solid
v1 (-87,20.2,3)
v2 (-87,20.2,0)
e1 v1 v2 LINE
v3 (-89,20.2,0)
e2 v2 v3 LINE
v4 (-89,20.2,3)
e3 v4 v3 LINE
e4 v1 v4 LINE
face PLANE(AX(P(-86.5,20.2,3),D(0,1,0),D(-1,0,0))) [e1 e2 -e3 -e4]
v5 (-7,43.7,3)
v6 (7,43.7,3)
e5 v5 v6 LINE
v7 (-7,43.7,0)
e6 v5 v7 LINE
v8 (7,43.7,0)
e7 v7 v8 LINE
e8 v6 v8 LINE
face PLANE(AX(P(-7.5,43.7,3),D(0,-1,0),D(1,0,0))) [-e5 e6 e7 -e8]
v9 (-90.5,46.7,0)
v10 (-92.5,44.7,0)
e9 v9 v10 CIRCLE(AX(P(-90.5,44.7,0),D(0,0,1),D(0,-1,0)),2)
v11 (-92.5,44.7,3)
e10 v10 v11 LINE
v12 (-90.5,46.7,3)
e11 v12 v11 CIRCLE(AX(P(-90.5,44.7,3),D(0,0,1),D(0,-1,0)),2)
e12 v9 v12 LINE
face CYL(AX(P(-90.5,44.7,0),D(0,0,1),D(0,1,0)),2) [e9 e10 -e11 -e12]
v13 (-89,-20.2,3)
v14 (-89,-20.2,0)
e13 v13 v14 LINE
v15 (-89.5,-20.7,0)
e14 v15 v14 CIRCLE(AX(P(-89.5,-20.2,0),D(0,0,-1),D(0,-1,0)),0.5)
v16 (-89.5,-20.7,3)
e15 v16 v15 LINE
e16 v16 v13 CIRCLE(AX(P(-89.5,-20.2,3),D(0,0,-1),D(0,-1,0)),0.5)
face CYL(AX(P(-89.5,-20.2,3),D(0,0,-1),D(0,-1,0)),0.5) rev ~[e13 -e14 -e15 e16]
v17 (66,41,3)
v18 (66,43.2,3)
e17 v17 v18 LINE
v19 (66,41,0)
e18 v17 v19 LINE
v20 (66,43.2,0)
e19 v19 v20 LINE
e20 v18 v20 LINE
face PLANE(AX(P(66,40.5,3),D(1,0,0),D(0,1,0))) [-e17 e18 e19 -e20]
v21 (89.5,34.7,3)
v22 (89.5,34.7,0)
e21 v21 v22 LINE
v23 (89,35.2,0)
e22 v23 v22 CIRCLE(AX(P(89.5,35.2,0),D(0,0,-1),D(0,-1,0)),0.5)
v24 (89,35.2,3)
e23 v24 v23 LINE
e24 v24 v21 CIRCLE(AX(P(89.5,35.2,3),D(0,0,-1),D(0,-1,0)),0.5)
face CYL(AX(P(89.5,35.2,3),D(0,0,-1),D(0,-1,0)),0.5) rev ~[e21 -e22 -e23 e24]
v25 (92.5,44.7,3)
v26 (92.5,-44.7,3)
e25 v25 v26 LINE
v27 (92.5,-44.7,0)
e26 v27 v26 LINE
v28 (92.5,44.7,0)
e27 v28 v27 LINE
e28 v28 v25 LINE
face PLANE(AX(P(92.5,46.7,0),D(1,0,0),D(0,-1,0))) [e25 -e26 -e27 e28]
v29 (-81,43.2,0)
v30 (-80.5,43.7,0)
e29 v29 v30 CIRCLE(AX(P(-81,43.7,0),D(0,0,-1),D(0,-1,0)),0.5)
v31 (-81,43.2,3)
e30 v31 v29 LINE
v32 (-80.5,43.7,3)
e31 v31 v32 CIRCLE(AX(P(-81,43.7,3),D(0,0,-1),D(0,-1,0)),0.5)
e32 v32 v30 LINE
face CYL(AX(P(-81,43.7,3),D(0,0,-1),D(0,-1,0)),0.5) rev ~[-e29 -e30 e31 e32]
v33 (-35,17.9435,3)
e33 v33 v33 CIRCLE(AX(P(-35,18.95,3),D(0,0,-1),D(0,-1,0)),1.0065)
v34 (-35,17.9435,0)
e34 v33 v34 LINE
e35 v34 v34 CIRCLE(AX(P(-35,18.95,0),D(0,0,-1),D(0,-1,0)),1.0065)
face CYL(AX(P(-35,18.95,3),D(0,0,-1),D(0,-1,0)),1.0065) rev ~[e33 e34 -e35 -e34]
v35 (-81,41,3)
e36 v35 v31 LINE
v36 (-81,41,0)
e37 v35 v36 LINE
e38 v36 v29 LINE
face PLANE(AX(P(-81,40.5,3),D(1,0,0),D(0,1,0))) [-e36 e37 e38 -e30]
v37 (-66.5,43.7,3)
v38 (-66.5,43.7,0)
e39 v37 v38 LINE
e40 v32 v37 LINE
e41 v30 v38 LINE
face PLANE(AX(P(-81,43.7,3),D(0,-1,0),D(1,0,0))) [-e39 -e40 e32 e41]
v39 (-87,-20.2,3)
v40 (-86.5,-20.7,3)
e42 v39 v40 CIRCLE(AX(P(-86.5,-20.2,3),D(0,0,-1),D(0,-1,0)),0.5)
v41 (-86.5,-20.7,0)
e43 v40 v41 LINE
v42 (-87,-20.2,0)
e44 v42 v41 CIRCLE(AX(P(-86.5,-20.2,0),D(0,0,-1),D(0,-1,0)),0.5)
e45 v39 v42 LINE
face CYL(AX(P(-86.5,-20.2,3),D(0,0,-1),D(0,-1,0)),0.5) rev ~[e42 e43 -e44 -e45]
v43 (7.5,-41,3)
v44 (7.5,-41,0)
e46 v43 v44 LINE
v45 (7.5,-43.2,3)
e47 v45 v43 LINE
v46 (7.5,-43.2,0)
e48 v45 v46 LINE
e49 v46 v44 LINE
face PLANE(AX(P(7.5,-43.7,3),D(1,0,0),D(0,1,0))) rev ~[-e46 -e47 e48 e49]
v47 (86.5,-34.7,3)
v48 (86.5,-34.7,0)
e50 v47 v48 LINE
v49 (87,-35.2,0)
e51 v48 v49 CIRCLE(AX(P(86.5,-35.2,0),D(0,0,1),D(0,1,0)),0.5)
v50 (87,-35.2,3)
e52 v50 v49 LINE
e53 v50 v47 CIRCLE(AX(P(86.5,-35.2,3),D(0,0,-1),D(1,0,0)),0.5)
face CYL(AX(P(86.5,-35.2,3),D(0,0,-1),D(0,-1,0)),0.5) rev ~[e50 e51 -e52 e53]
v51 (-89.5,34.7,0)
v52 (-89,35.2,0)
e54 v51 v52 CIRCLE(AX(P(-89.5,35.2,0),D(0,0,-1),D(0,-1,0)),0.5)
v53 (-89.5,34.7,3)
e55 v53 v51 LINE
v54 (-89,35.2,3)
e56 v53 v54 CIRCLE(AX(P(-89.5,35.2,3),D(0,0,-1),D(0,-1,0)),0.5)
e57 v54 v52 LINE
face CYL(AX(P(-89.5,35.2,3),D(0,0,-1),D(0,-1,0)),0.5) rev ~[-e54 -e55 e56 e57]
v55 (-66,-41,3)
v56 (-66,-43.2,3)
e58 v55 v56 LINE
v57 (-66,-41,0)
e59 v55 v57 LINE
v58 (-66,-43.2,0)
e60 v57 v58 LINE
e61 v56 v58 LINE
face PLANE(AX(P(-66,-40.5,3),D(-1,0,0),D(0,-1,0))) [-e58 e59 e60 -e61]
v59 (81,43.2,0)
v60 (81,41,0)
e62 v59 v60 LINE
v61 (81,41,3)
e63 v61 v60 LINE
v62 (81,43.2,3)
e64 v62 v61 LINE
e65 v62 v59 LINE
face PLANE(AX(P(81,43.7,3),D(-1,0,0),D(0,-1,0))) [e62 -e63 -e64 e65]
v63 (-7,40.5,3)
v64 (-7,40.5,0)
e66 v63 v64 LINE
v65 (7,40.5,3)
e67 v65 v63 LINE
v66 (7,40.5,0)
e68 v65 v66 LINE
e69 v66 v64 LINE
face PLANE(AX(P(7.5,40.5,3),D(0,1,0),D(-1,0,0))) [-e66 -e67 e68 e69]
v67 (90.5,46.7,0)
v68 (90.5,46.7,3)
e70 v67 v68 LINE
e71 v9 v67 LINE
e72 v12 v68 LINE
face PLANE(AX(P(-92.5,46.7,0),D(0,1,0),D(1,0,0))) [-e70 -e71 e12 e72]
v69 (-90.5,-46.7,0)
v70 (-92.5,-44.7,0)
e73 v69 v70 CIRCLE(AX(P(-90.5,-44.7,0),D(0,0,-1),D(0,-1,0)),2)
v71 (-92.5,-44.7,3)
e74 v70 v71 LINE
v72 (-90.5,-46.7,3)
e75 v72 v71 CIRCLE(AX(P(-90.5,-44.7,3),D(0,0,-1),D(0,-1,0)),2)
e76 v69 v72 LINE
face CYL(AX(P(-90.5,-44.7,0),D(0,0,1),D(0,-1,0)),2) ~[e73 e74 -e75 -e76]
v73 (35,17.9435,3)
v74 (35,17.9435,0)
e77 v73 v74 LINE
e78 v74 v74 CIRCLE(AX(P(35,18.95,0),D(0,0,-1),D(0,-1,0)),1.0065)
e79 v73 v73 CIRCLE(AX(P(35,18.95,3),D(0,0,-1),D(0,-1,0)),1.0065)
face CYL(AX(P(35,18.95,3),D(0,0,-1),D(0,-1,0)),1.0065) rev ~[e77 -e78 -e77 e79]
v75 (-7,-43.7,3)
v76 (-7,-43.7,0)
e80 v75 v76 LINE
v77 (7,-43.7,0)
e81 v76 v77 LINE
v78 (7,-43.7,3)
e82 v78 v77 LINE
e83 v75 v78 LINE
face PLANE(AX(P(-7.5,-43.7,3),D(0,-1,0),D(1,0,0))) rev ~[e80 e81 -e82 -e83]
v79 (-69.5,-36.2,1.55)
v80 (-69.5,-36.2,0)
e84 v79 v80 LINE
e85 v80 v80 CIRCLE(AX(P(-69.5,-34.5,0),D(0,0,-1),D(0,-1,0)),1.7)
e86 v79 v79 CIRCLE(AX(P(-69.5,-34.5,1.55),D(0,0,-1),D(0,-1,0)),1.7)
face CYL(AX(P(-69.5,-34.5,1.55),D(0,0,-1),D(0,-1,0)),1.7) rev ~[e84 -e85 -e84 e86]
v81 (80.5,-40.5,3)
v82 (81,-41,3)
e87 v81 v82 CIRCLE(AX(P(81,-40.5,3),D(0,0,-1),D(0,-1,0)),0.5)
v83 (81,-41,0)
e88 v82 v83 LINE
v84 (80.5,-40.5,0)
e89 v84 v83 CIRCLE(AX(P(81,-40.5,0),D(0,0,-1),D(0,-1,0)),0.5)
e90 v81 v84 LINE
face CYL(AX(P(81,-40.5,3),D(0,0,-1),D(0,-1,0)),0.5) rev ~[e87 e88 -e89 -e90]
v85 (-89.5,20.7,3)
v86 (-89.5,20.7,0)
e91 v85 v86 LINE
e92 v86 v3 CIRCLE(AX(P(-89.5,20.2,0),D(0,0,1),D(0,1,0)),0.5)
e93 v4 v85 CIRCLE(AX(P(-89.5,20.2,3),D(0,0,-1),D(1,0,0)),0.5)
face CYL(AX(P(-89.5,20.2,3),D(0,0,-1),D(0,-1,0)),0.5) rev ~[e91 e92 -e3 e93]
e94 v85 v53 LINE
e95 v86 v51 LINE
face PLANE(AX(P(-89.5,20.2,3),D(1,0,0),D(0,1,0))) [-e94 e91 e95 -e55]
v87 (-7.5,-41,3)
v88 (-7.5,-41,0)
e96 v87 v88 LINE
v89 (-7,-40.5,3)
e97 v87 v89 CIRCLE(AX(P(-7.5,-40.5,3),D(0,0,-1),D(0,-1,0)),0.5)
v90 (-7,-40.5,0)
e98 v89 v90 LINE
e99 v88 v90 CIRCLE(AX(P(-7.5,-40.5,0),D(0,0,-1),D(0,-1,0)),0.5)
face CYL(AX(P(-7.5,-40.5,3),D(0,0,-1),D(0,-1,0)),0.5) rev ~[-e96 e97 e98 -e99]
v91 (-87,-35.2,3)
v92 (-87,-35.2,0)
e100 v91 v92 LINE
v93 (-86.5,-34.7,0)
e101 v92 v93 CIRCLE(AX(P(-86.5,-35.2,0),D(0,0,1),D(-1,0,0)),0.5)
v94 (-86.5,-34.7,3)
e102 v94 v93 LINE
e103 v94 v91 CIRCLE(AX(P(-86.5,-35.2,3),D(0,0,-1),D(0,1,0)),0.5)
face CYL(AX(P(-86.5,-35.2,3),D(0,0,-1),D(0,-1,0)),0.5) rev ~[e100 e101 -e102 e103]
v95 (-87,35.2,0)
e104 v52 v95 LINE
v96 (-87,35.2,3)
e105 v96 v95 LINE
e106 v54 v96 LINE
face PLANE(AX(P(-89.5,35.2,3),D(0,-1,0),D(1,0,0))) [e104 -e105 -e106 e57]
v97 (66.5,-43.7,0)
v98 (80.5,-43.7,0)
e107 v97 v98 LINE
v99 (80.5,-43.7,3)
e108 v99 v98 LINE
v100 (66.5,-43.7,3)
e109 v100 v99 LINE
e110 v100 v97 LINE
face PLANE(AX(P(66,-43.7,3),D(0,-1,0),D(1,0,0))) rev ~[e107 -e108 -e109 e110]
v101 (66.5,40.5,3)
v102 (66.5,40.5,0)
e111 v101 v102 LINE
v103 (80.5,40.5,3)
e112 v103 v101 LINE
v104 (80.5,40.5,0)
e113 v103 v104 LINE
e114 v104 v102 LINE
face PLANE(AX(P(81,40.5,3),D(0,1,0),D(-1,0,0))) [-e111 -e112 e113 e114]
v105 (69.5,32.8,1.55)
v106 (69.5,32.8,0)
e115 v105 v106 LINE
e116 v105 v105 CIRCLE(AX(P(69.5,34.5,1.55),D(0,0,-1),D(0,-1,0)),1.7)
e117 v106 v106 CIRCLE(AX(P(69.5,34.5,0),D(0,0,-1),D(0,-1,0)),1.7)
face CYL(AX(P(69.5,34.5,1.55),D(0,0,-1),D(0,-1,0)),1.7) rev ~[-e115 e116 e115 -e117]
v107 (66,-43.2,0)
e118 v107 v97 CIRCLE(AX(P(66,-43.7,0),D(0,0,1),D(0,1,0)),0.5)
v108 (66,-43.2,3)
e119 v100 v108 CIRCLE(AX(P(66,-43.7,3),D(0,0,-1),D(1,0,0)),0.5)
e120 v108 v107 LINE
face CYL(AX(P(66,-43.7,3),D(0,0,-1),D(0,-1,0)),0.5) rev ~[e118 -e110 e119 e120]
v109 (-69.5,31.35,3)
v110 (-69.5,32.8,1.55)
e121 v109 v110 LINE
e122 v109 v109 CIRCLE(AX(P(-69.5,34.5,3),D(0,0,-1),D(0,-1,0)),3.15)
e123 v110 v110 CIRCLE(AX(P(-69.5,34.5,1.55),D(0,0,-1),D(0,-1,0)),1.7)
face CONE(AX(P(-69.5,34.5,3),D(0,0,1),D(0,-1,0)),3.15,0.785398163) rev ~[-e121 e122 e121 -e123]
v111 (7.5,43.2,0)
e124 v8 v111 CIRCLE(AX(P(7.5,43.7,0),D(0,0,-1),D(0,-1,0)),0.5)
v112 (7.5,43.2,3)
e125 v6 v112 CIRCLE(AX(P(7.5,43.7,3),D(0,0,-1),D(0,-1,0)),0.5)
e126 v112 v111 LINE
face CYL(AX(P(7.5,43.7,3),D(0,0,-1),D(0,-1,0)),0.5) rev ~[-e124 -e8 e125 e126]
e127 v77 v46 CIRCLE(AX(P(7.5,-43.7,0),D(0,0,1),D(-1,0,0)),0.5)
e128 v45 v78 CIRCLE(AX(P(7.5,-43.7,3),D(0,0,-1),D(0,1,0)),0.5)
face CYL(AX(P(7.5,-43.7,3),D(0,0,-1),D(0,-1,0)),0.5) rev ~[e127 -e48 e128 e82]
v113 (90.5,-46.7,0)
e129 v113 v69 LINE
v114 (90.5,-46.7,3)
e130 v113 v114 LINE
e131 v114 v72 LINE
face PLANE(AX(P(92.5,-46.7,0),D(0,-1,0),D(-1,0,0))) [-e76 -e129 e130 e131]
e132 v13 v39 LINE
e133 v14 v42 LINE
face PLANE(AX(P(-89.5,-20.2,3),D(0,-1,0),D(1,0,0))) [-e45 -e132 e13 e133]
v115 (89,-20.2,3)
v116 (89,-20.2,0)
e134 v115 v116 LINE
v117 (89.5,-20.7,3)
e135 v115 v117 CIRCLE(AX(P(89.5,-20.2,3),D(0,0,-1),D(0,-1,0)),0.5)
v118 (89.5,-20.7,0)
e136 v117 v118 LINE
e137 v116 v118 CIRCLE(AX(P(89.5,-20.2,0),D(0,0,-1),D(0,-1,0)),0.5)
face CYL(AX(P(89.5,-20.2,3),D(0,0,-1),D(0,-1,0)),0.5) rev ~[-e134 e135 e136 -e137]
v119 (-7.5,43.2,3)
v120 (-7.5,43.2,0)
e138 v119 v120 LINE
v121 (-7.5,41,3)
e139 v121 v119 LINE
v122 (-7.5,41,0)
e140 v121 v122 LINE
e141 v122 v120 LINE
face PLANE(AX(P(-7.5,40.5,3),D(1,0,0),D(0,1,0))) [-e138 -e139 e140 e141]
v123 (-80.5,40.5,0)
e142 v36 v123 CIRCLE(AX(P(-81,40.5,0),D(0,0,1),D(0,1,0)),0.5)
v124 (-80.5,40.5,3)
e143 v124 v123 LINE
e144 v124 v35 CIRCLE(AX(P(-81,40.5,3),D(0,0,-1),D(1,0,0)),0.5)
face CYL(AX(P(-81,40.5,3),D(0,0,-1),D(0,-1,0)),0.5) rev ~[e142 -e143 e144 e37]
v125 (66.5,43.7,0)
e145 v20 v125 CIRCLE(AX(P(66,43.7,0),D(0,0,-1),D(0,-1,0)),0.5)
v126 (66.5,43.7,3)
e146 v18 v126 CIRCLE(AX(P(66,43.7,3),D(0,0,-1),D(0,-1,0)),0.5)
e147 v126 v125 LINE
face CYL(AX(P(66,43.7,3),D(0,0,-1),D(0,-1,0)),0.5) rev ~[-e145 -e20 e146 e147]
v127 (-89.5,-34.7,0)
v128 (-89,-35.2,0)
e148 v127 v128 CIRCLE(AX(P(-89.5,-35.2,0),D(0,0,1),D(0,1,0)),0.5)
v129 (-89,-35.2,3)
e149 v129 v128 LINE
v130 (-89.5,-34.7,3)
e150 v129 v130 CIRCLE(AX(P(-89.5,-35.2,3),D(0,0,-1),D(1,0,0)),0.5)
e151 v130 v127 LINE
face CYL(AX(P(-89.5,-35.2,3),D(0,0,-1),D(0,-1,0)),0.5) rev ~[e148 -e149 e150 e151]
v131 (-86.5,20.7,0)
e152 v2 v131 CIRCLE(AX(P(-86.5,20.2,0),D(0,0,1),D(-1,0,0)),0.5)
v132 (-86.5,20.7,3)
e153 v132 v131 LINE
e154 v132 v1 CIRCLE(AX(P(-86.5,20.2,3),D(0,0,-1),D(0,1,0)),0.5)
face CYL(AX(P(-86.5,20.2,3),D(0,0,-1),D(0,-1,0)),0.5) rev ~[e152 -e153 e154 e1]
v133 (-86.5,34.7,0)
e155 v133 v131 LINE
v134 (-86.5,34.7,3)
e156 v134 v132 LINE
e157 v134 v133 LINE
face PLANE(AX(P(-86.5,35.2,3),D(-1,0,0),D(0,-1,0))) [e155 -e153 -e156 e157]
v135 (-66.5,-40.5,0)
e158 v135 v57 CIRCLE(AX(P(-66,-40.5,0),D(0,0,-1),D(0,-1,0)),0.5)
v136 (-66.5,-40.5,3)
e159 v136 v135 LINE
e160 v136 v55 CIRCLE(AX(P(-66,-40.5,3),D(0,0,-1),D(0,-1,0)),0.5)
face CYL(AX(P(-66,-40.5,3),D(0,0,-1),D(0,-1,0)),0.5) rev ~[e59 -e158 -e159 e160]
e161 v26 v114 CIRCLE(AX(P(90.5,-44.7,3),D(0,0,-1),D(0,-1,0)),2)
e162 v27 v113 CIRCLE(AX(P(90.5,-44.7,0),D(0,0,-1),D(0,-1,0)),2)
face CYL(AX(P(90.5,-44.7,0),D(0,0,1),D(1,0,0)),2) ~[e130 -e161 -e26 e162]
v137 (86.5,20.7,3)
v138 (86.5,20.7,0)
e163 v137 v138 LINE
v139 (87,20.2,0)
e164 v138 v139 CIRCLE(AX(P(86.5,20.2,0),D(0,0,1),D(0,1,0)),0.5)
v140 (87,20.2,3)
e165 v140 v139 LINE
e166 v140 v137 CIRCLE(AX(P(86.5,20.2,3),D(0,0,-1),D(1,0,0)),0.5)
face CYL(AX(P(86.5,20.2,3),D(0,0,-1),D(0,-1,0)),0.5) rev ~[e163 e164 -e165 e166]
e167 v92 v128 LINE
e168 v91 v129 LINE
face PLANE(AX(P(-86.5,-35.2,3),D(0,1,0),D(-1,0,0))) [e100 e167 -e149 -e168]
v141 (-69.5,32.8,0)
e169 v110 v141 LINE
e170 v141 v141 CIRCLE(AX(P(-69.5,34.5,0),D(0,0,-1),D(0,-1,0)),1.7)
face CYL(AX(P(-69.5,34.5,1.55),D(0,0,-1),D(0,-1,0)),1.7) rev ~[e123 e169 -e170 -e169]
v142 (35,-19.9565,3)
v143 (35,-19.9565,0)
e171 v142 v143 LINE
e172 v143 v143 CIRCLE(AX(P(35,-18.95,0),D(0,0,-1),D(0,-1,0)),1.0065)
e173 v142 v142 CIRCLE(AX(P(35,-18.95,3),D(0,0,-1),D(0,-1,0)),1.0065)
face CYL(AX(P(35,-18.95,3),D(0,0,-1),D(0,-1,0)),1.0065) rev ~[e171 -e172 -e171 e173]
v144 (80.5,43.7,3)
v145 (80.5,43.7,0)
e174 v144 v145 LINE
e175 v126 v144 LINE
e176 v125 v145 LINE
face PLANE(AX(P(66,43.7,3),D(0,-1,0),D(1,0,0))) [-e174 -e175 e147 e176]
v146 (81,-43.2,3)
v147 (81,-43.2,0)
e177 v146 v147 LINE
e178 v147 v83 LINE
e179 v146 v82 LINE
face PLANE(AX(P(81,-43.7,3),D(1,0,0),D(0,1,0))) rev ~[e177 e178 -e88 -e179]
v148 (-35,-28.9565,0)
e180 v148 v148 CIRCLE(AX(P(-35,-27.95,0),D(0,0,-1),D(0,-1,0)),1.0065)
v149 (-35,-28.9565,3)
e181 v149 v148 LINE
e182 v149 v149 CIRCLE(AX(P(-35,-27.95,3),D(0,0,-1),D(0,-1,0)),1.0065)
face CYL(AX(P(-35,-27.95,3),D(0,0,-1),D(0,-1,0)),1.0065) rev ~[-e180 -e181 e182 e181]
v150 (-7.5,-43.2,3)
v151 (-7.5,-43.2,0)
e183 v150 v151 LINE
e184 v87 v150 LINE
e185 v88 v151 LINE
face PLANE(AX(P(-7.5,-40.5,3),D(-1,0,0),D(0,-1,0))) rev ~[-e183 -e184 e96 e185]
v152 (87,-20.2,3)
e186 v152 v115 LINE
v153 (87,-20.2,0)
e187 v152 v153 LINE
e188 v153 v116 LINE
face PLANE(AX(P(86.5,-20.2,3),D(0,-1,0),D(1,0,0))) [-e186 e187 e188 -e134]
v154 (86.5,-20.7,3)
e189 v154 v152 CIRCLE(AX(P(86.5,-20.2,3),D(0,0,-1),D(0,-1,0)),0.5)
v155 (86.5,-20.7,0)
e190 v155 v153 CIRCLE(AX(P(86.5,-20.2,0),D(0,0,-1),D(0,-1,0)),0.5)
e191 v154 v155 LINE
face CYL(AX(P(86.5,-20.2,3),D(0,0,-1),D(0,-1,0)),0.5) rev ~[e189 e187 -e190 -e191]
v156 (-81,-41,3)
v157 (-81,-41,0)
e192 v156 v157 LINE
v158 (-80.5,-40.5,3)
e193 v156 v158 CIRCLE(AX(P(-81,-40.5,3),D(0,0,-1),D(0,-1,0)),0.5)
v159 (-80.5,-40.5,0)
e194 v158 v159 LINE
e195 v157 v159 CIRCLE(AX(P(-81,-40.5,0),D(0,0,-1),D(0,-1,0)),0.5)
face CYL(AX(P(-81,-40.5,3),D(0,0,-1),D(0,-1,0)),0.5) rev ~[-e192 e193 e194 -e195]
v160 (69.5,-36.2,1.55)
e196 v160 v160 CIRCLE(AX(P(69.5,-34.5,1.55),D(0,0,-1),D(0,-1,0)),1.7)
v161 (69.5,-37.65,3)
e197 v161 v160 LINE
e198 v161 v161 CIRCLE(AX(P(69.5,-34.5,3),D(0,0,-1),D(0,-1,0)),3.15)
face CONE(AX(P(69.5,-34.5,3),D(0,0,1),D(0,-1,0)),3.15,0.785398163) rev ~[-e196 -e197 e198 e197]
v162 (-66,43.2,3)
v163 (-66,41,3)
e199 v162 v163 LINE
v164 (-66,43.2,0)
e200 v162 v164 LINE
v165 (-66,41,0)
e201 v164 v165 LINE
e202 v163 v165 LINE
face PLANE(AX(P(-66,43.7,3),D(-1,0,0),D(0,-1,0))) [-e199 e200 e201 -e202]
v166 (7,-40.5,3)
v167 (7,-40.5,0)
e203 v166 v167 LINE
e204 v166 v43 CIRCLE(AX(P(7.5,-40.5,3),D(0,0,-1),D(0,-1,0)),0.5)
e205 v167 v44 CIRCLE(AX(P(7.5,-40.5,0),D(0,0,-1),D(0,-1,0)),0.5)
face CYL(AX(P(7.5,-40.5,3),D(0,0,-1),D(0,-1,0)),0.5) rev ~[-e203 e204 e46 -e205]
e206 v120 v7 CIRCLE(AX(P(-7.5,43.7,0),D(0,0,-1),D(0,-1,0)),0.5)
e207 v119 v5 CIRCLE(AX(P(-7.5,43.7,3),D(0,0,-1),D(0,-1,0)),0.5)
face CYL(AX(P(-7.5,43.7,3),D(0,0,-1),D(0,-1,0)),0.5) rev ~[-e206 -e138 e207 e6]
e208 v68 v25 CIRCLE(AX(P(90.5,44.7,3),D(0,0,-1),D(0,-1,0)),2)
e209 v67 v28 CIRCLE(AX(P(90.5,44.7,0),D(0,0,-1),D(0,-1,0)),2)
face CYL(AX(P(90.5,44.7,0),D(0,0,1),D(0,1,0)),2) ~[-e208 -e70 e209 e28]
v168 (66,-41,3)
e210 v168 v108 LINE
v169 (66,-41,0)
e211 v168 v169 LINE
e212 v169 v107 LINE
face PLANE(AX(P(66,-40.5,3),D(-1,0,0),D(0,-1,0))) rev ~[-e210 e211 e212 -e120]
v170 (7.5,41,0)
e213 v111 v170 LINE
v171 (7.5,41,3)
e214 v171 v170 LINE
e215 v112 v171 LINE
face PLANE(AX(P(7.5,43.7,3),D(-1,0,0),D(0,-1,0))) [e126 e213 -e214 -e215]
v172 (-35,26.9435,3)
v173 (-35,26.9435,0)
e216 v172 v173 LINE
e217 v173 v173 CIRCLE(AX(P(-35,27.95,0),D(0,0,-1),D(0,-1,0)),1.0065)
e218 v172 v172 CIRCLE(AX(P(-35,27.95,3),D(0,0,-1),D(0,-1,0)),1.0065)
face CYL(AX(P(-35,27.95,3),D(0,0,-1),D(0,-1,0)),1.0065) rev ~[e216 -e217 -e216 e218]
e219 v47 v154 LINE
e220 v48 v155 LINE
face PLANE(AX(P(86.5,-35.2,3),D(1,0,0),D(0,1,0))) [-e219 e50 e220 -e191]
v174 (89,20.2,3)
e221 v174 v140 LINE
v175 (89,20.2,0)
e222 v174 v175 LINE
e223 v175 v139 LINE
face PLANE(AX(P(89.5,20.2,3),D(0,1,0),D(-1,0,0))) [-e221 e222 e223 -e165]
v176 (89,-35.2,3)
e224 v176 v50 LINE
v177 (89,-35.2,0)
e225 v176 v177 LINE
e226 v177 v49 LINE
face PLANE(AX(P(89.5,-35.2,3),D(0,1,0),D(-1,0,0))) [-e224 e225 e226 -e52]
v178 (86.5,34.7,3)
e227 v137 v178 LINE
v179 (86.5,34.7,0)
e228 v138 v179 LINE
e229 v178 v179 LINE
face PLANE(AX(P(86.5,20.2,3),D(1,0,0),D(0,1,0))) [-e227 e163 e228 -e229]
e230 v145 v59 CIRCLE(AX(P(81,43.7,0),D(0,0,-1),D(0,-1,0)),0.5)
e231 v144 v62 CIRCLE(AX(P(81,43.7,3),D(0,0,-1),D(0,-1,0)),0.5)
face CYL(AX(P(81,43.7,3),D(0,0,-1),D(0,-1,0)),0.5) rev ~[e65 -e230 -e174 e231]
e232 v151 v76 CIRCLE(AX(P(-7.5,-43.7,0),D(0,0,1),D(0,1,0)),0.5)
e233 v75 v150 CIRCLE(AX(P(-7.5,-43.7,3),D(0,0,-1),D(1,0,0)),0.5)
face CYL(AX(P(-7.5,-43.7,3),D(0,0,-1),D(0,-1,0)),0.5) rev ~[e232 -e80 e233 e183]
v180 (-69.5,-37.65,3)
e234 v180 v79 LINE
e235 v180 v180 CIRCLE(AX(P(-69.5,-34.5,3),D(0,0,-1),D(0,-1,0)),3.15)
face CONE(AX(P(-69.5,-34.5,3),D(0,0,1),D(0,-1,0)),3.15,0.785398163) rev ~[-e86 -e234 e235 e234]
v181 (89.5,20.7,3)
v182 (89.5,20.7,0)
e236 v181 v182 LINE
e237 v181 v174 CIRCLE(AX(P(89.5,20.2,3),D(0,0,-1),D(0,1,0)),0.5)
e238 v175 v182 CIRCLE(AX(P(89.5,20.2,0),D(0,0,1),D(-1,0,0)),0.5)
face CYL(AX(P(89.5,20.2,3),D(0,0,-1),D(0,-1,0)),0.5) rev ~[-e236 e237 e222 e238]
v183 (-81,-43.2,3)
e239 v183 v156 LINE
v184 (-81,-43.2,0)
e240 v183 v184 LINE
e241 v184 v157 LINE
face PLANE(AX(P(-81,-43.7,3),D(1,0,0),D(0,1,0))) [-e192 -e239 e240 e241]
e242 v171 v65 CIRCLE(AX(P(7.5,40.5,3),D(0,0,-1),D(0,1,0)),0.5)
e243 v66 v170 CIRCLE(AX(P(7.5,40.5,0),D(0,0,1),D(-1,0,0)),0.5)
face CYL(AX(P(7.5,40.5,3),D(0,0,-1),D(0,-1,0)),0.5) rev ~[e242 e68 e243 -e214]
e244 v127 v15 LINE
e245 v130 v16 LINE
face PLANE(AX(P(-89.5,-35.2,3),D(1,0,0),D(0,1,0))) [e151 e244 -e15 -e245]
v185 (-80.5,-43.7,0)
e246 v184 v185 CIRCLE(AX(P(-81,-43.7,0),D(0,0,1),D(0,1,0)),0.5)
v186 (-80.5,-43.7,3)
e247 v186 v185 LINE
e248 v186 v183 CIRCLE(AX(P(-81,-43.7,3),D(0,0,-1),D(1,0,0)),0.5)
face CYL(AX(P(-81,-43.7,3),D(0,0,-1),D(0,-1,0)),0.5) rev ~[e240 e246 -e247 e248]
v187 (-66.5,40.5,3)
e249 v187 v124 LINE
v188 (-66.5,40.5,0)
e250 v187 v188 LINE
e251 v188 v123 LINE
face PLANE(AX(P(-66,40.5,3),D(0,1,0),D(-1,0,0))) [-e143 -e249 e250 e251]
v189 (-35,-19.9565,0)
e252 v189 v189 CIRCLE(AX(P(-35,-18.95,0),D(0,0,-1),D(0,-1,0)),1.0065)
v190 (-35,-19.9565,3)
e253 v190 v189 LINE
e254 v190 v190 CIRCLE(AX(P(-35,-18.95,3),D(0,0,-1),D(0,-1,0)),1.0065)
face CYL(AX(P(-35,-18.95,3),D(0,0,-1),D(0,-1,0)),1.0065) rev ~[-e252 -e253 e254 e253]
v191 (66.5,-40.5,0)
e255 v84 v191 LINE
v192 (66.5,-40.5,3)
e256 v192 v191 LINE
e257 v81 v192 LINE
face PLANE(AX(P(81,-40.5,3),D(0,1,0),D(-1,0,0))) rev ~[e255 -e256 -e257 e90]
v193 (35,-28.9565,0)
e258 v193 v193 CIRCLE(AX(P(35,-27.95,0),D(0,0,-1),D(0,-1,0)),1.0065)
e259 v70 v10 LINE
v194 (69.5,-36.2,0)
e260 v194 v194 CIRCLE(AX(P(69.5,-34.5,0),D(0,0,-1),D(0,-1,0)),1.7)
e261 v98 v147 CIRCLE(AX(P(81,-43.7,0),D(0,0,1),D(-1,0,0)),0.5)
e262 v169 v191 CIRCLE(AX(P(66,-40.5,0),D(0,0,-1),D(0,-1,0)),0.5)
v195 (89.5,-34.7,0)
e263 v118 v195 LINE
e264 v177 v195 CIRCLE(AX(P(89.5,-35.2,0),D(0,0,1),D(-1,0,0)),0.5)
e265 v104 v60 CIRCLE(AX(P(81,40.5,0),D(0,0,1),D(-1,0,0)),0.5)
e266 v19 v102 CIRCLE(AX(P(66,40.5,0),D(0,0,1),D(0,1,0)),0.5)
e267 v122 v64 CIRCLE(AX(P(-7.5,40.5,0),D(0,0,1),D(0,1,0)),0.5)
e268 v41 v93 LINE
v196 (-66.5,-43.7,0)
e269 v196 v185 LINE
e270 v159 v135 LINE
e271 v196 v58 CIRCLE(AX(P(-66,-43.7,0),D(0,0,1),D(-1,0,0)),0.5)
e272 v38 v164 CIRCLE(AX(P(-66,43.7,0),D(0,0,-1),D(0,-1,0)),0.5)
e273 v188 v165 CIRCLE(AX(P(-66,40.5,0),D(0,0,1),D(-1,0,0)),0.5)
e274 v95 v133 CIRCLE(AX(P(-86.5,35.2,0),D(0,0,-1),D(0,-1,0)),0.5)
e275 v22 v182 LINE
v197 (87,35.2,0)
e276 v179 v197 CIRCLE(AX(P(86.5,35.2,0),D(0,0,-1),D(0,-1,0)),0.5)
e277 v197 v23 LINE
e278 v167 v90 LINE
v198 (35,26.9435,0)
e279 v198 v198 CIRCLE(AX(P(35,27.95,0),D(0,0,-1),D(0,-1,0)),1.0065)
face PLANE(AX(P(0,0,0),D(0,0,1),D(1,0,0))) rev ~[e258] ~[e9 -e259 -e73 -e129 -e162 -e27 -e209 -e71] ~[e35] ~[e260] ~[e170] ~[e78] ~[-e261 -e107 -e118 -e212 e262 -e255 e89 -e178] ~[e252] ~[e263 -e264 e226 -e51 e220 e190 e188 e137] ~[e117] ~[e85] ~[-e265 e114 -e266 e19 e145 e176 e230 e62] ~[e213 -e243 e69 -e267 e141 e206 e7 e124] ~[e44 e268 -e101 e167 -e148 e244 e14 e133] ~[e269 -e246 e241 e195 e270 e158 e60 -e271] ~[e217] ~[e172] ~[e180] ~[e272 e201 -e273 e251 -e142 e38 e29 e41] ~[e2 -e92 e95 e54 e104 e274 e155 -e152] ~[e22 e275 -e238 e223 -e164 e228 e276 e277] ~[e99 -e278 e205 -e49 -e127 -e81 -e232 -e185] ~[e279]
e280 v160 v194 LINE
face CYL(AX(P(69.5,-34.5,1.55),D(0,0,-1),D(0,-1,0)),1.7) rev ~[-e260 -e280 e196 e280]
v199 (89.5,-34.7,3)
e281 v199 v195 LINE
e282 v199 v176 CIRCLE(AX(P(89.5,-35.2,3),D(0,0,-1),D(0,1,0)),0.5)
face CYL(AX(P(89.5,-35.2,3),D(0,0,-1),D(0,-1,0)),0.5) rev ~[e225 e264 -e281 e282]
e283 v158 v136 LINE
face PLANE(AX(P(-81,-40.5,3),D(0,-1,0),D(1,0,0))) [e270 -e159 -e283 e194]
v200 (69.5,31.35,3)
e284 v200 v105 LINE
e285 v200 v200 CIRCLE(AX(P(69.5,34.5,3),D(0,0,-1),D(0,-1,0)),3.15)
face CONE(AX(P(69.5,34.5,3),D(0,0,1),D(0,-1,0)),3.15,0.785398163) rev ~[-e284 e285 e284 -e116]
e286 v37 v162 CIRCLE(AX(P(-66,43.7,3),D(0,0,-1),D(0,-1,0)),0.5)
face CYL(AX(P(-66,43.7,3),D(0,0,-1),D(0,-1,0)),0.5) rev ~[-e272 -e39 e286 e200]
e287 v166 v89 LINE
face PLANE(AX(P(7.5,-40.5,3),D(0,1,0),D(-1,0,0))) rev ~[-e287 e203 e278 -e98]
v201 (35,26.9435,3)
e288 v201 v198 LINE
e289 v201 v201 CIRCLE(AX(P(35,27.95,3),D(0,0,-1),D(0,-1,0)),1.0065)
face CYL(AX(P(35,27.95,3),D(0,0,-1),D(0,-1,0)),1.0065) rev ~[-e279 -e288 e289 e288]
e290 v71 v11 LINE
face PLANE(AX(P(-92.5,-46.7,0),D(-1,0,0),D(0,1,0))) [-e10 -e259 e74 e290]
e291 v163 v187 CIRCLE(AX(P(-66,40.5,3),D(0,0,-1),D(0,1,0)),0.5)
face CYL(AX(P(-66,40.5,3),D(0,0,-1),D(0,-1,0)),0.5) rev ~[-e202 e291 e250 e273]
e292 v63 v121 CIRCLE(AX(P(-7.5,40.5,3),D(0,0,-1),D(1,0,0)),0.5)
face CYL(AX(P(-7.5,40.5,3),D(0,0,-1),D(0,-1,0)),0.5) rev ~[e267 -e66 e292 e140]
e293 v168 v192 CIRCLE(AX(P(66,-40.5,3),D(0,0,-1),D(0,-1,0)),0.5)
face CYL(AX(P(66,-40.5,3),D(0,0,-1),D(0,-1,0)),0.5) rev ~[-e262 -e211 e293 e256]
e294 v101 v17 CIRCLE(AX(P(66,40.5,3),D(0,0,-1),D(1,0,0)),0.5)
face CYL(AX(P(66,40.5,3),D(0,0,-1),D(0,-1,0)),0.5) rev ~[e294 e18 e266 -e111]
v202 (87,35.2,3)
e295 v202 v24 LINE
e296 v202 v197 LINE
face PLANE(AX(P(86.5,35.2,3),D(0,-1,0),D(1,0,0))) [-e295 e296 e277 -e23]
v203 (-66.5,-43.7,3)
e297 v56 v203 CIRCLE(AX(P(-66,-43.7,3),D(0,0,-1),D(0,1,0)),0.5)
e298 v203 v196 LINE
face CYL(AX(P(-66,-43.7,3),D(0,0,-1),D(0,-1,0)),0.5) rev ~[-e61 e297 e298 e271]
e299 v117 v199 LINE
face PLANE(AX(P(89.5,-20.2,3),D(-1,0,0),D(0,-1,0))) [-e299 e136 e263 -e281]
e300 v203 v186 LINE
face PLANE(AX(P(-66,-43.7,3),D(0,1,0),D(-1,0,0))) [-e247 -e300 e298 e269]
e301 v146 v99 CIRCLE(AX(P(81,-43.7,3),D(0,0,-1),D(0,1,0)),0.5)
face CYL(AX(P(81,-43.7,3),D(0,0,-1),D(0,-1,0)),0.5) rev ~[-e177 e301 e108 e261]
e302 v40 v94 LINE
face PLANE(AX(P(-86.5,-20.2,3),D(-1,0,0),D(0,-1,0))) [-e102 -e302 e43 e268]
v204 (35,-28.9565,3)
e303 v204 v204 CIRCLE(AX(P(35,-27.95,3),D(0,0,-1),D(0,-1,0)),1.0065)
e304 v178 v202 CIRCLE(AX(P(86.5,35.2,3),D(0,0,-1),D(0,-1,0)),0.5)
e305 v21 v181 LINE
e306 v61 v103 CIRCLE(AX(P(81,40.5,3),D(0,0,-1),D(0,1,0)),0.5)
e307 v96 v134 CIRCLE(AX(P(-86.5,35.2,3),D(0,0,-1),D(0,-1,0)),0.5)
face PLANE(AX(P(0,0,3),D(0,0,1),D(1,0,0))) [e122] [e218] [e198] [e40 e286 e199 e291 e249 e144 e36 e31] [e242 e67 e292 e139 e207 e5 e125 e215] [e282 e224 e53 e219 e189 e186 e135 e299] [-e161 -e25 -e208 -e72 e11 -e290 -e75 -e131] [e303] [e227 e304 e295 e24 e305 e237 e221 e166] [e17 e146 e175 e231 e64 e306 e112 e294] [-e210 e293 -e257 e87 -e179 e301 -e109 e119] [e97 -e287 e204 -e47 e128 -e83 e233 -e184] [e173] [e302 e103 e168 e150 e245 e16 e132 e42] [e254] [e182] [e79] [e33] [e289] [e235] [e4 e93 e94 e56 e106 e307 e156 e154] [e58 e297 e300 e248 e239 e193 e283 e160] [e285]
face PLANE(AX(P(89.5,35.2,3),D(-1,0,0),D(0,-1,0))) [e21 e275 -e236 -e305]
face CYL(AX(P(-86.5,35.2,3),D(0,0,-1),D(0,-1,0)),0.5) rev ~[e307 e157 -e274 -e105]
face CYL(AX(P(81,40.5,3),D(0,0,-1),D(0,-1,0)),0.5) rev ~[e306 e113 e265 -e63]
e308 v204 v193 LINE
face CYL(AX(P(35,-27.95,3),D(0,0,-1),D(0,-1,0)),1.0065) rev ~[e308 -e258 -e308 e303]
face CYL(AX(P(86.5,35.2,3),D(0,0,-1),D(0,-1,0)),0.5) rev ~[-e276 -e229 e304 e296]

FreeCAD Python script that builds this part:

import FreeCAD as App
import Part
import Sketcher

V = App.Vector
Q = App.Units.Quantity


def edges_at(feature, points):
    """Names of the edges that pass closest to the given points."""
    edges = feature.Shape.Edges
    near = lambda p: min(range(len(edges)), key=lambda i: edges[i].distToShape(Part.Vertex(*p))[0])
    return sorted({f"Edge{near(p) + 1}" for p in points})


def add_polygon(sketch, points):
    """Adds a closed chain of lines whose ends are joined by coincident constraints."""
    first, n = sketch.GeometryCount, len(points)
    for a, b in zip(points, points[1:] + points[:1]):
        sketch.addGeometry(Part.LineSegment(App.Vector(*a, 0), App.Vector(*b, 0)), False)
    for i in range(n):
        sketch.addConstraint(Sketcher.Constraint("Coincident", first + i, 2, first + (i + 1) % n, 1))

doc = App.newDocument("Part")
body = doc.addObject("PartDesign::Body", "Body")

# Sketch on XY plane
sketch1 = doc.addObject("Sketcher::SketchObject", "Sketch")
body.addObject(sketch1)
sketch1.AttachmentSupport = (doc.XY_Plane, [""])
sketch1.MapMode = "FlatFace"
add_polygon(sketch1, [(92.5, 46.7), (-92.5, 46.7), (-92.5, -46.7), (92.5, -46.7)])  # lines 0-3
sketch1.addConstraint([
    Sketcher.Constraint("Horizontal", 0),
    Sketcher.Constraint("Vertical", 1),
    Sketcher.Constraint("Horizontal", 2),
    Sketcher.Constraint("Vertical", 3),
    Sketcher.Constraint("Symmetric", 0, 2, 2, 2, -1, 1),
    Sketcher.Constraint("DistanceX", 0, 2, 0, 1, Q("185 mm")),
    Sketcher.Constraint("DistanceY", 1, 2, 1, 1, Q("93.4 mm")),
])
pad1 = doc.addObject("PartDesign::Pad", "Pad")
body.addObject(pad1)
pad1.Profile = sketch1
pad1.Length = 3
doc.recompute()

fillet = doc.addObject("PartDesign::Fillet", "Fillet")
body.addObject(fillet)
fillet.Base = (pad1, edges_at(pad1, [
    (-92.5, 46.7, 1.5),
    (92.5, 46.7, 1.5),
    (92.5, -46.7, 1.5),
    (-92.5, -46.7, 1.5),
]))
fillet.Radius = 2

# Sketch on XY plane
sketch2 = doc.addObject("Sketcher::SketchObject", "Sketch001")
body.addObject(sketch2)
sketch2.AttachmentSupport = (doc.XY_Plane, [""])
sketch2.MapMode = "FlatFace"
sketch2.AttachmentOffset = App.Placement(V(0, 0, 3), App.Rotation())
add_polygon(sketch2, [(7.5, 43.7), (-7.5, 43.7), (-7.5, 40.5), (7.5, 40.5)])  # lines 0-3
add_polygon(sketch2, [(-66, 43.7), (-81, 43.7), (-81, 40.5), (-66, 40.5)])  # lines 4-7
add_polygon(sketch2, [(81, 43.7), (66, 43.7), (66, 40.5), (81, 40.5)])  # lines 8-11
add_polygon(sketch2, [(-66, -40.5), (-81, -40.5), (-81, -43.7), (-66, -43.7)])  # lines 12-15
add_polygon(sketch2, [(-7.5, -40.5), (-7.5, -43.7), (7.5, -43.7), (7.5, -40.5)])  # lines 16-19
add_polygon(sketch2, [(66, -40.5), (66, -43.7), (81, -43.7), (81, -40.5)])  # lines 20-23
sketch2.addConstraint([
    Sketcher.Constraint("Horizontal", 0),
    Sketcher.Constraint("Vertical", 1),
    Sketcher.Constraint("Horizontal", 2),
    Sketcher.Constraint("Vertical", 3),
    Sketcher.Constraint("Horizontal", 4),
    Sketcher.Constraint("Vertical", 5),
    Sketcher.Constraint("Horizontal", 6),
    Sketcher.Constraint("Vertical", 7),
    Sketcher.Constraint("Horizontal", 8),
    Sketcher.Constraint("Vertical", 9),
    Sketcher.Constraint("Horizontal", 10),
    Sketcher.Constraint("Vertical", 11),
    Sketcher.Constraint("Horizontal", 12),
    Sketcher.Constraint("Vertical", 13),
    Sketcher.Constraint("Horizontal", 14),
    Sketcher.Constraint("Vertical", 15),
    Sketcher.Constraint("Vertical", 16),
    Sketcher.Constraint("Horizontal", 17),
    Sketcher.Constraint("Vertical", 18),
    Sketcher.Constraint("Horizontal", 19),
    Sketcher.Constraint("Vertical", 20),
    Sketcher.Constraint("Horizontal", 21),
    Sketcher.Constraint("Vertical", 22),
    Sketcher.Constraint("Horizontal", 23),
    Sketcher.Constraint("Symmetric", 10, 2, 12, 2, -1, 1),
    Sketcher.Constraint("Symmetric", 8, 2, 14, 2, -1, 1),
    Sketcher.Constraint("Symmetric", 3, 2, 16, 2, -1, 1),
    Sketcher.Constraint("Symmetric", 1, 2, 18, 2, -1, 1),
    Sketcher.Constraint("Symmetric", 7, 2, 20, 2, -1, 1),
    Sketcher.Constraint("Symmetric", 5, 2, 22, 2, -1, 1),
    Sketcher.Constraint("Symmetric", 7, 2, 8, 2, -2),
    Sketcher.Constraint("Symmetric", 5, 2, 10, 2, -2),
    Sketcher.Constraint("Horizontal", 3, 2, 4, 2),
    Sketcher.Constraint("Horizontal", 2, 2, 5, 2),
    Sketcher.Constraint("Vertical", 1, 2, 16, 2),
    Sketcher.Constraint("Equal", 2, 4),
    Sketcher.Constraint("DistanceX", 0, 2, 0, 1, Q("15 mm")),
    Sketcher.Constraint("DistanceY", 1, 2, 1, 1, Q("3.2 mm")),
    Sketcher.Constraint("DistanceX", 4, 2, -1, 1, Q("81 mm")),
    Sketcher.Constraint("DistanceY", 12, 2, 5, 2, Q("81 mm")),
])
pocket1 = doc.addObject("PartDesign::Pocket", "Pocket")
body.addObject(pocket1)
pocket1.Profile = sketch2
pocket1.Type = "ThroughAll"

# Sketch on XY plane
sketch3 = doc.addObject("Sketcher::SketchObject", "Sketch002")
body.addObject(sketch3)
sketch3.AttachmentSupport = (doc.XY_Plane, [""])
sketch3.MapMode = "FlatFace"
sketch3.AttachmentOffset = App.Placement(V(0, 0, 3), App.Rotation())
sketch3.addGeometry([
    Part.Circle(V(-69.5, 34.5, 0), V(0, 0, 1), 1.7),
    Part.Circle(V(69.5, 34.5, 0), V(0, 0, 1), 1.7),
    Part.Circle(V(69.5, -34.5, 0), V(0, 0, 1), 1.7),
    Part.Circle(V(-69.5, -34.5, 0), V(0, 0, 1), 1.7),
], False)
sketch3.addConstraint([
    Sketcher.Constraint("Equal", 0, 1),
    Sketcher.Constraint("Equal", 1, 2),
    Sketcher.Constraint("Equal", 2, 3),
    Sketcher.Constraint("Symmetric", 0, 3, 2, 3, -1, 1),
    Sketcher.Constraint("Symmetric", 1, 3, 3, 3, -1, 1),
    Sketcher.Constraint("Symmetric", 0, 3, 1, 3, -2),
    Sketcher.Constraint("Diameter", 0, Q("3.4 mm")),
    Sketcher.Constraint("DistanceX", 0, 3, 1, 3, Q("139 mm")),
    Sketcher.Constraint("DistanceY", 2, 3, 1, 3, Q("69 mm")),
])
doc.recompute()
hole = doc.addObject("PartDesign::Hole", "Hole")
body.addObject(hole)
hole.Profile = sketch3
hole.ThreadType = "None"
hole.Diameter = 3.4
hole.DepthType = "ThroughAll"
hole.HoleCutType = "Countersink"
hole.HoleCutDiameter = 6.3
hole.HoleCutCountersinkAngle = 90

# Sketch on XY plane
sketch4 = doc.addObject("Sketcher::SketchObject", "Sketch003")
body.addObject(sketch4)
sketch4.AttachmentSupport = (doc.XY_Plane, [""])
sketch4.MapMode = "FlatFace"
sketch4.AttachmentOffset = App.Placement(V(0, 0, 3), App.Rotation())
add_polygon(sketch4, [(-86.5, 35.2), (-89.5, 35.2), (-89.5, 20.2), (-86.5, 20.2)])  # lines 0-3
add_polygon(sketch4, [(-86.5, -20.2), (-89.5, -20.2), (-89.5, -35.2), (-86.5, -35.2)])  # lines 4-7
add_polygon(sketch4, [(86.5, -35.2), (89.5, -35.2), (89.5, -20.2), (86.5, -20.2)])  # lines 8-11
add_polygon(sketch4, [(89.5, 35.2), (86.5, 35.2), (86.5, 20.2), (89.5, 20.2)])  # lines 12-15
sketch4.addConstraint([
    Sketcher.Constraint("Horizontal", 0),
    Sketcher.Constraint("Vertical", 1),
    Sketcher.Constraint("Horizontal", 2),
    Sketcher.Constraint("Vertical", 3),
    Sketcher.Constraint("Horizontal", 4),
    Sketcher.Constraint("Vertical", 5),
    Sketcher.Constraint("Horizontal", 6),
    Sketcher.Constraint("Vertical", 7),
    Sketcher.Constraint("Horizontal", 8),
    Sketcher.Constraint("Vertical", 9),
    Sketcher.Constraint("Horizontal", 10),
    Sketcher.Constraint("Vertical", 11),
    Sketcher.Constraint("Horizontal", 12),
    Sketcher.Constraint("Vertical", 13),
    Sketcher.Constraint("Horizontal", 14),
    Sketcher.Constraint("Vertical", 15),
    Sketcher.Constraint("Symmetric", 0, 2, 8, 2, -1, 1),
    Sketcher.Constraint("Symmetric", 2, 2, 10, 2, -1, 1),
    Sketcher.Constraint("Symmetric", 6, 2, 12, 2, -1, 1),
    Sketcher.Constraint("Symmetric", 4, 2, 14, 2, -1, 1),
    Sketcher.Constraint("Symmetric", 5, 2, 8, 2, -2),
    Sketcher.Constraint("Symmetric", 7, 2, 10, 2, -2),
    Sketcher.Constraint("DistanceX", 0, 2, 0, 1, Q("3 mm")),
    Sketcher.Constraint("DistanceY", 1, 2, 1, 1, Q("15 mm")),
    Sketcher.Constraint("DistanceX", 6, 2, 8, 2, Q("176 mm")),
    Sketcher.Constraint("DistanceY", -1, 1, 0, 2, Q("35.2 mm")),
])
pocket2 = doc.addObject("PartDesign::Pocket", "Pocket001")
body.addObject(pocket2)
pocket2.Profile = sketch4
pocket2.Type = "ThroughAll"

# Sketch on XY plane
sketch5 = doc.addObject("Sketcher::SketchObject", "Sketch004")
body.addObject(sketch5)
sketch5.AttachmentSupport = (doc.XY_Plane, [""])
sketch5.MapMode = "FlatFace"
sketch5.AttachmentOffset = App.Placement(V(0, 0, 3), App.Rotation())
sketch5.addGeometry([
    Part.Circle(V(-81, 40.5, 0), V(0, 0, 1), 0.5),  # 0
    Part.Circle(V(-81, 43.7, 0), V(0, 0, 1), 0.5),  # 1
    Part.Circle(V(-66, 40.5, 0), V(0, 0, 1), 0.5),  # 2
    Part.Circle(V(-66, 43.7, 0), V(0, 0, 1), 0.5),  # 3
    Part.Circle(V(-86.5, 35.2, 0), V(0, 0, 1), 0.5),  # 4
    Part.Circle(V(-89.5, 35.2, 0), V(0, 0, 1), 0.5),  # 5
    Part.Circle(V(-89.5, 20.2, 0), V(0, 0, 1), 0.5),  # 6
    Part.Circle(V(-86.5, 20.2, 0), V(0, 0, 1), 0.5),  # 7
    Part.Circle(V(-86.5, -20.2, 0), V(0, 0, 1), 0.5),  # 8
    Part.Circle(V(-89.5, -20.2, 0), V(0, 0, 1), 0.5),  # 9
    Part.Circle(V(-89.5, -35.2, 0), V(0, 0, 1), 0.5),  # 10
    Part.Circle(V(-86.5, -35.2, 0), V(0, 0, 1), 0.5),  # 11
    Part.Circle(V(-81, -40.5, 0), V(0, 0, 1), 0.5),  # 12
    Part.Circle(V(-81, -43.7, 0), V(0, 0, 1), 0.5),  # 13
    Part.Circle(V(-66, -43.7, 0), V(0, 0, 1), 0.5),  # 14
    Part.Circle(V(-66, -40.5, 0), V(0, 0, 1), 0.5),  # 15
    Part.Circle(V(-7.5, -43.7, 0), V(0, 0, 1), 0.5),  # 16
    Part.Circle(V(-7.5, -40.5, 0), V(0, 0, 1), 0.5),  # 17
    Part.Circle(V(7.5, -40.5, 0), V(0, 0, 1), 0.5),  # 18
    Part.Circle(V(7.5, -43.7, 0), V(0, 0, 1), 0.5),  # 19
    Part.Circle(V(66, -43.7, 0), V(0, 0, 1), 0.5),  # 20
    Part.Circle(V(66, -40.5, 0), V(0, 0, 1), 0.5),  # 21
    Part.Circle(V(81, -40.5, 0), V(0, 0, 1), 0.5),  # 22
    Part.Circle(V(81, -43.7, 0), V(0, 0, 1), 0.5),  # 23
    Part.Circle(V(86.5, -35.2, 0), V(0, 0, 1), 0.5),  # 24
    Part.Circle(V(86.5, -20.2, 0), V(0, 0, 1), 0.5),  # 25
    Part.Circle(V(89.5, -20.2, 0), V(0, 0, 1), 0.5),  # 26
    Part.Circle(V(89.5, -35.2, 0), V(0, 0, 1), 0.5),  # 27
    Part.Circle(V(86.5, 20.2, 0), V(0, 0, 1), 0.5),  # 28
    Part.Circle(V(89.5, 20.2, 0), V(0, 0, 1), 0.5),  # 29
    Part.Circle(V(86.5, 35.2, 0), V(0, 0, 1), 0.5),  # 30
    Part.Circle(V(89.5, 35.2, 0), V(0, 0, 1), 0.5),  # 31
    Part.Circle(V(81, 40.5, 0), V(0, 0, 1), 0.5),  # 32
    Part.Circle(V(66, 43.7, 0), V(0, 0, 1), 0.5),  # 33
    Part.Circle(V(66, 40.5, 0), V(0, 0, 1), 0.5),  # 34
    Part.Circle(V(81, 43.7, 0), V(0, 0, 1), 0.5),  # 35
    Part.Circle(V(-7.5, 43.7, 0), V(0, 0, 1), 0.5),  # 36
    Part.Circle(V(-7.5, 40.5, 0), V(0, 0, 1), 0.5),  # 37
    Part.Circle(V(7.5, 40.5, 0), V(0, 0, 1), 0.5),  # 38
    Part.Circle(V(7.5, 43.7, 0), V(0, 0, 1), 0.5),  # 39
], False)
sketch5.addConstraint([
    Sketcher.Constraint("Equal", 0, 1),
    Sketcher.Constraint("Equal", 1, 2),
    Sketcher.Constraint("Equal", 2, 3),
    Sketcher.Constraint("Equal", 3, 4),
    Sketcher.Constraint("Equal", 4, 5),
    Sketcher.Constraint("Equal", 5, 6),
    Sketcher.Constraint("Equal", 6, 7),
    Sketcher.Constraint("Equal", 7, 8),
    Sketcher.Constraint("Equal", 8, 9),
    Sketcher.Constraint("Equal", 9, 10),
    Sketcher.Constraint("Equal", 10, 11),
    Sketcher.Constraint("Equal", 11, 12),
    Sketcher.Constraint("Equal", 12, 13),
    Sketcher.Constraint("Equal", 13, 14),
    Sketcher.Constraint("Equal", 14, 15),
    Sketcher.Constraint("Equal", 15, 16),
    Sketcher.Constraint("Equal", 16, 17),
    Sketcher.Constraint("Equal", 17, 18),
    Sketcher.Constraint("Equal", 18, 19),
    Sketcher.Constraint("Equal", 19, 20),
    Sketcher.Constraint("Equal", 20, 21),
    Sketcher.Constraint("Equal", 21, 22),
    Sketcher.Constraint("Equal", 22, 23),
    Sketcher.Constraint("Equal", 23, 24),
    Sketcher.Constraint("Equal", 24, 25),
    Sketcher.Constraint("Equal", 25, 26),
    Sketcher.Constraint("Equal", 26, 27),
    Sketcher.Constraint("Equal", 27, 28),
    Sketcher.Constraint("Equal", 28, 29),
    Sketcher.Constraint("Equal", 29, 30),
    Sketcher.Constraint("Equal", 30, 31),
    Sketcher.Constraint("Equal", 31, 32),
    Sketcher.Constraint("Equal", 32, 33),
    Sketcher.Constraint("Equal", 33, 34),
    Sketcher.Constraint("Equal", 34, 35),
    Sketcher.Constraint("Equal", 35, 36),
    Sketcher.Constraint("Equal", 36, 37),
    Sketcher.Constraint("Equal", 37, 38),
    Sketcher.Constraint("Equal", 38, 39),
    Sketcher.Constraint("Symmetric", 3, 3, 20, 3, -1, 1),
    Sketcher.Constraint("Symmetric", 2, 3, 21, 3, -1, 1),
    Sketcher.Constraint("Symmetric", 0, 3, 22, 3, -1, 1),
    Sketcher.Constraint("Symmetric", 1, 3, 23, 3, -1, 1),
    Sketcher.Constraint("Symmetric", 4, 3, 24, 3, -1, 1),
    Sketcher.Constraint("Symmetric", 7, 3, 25, 3, -1, 1),
    Sketcher.Constraint("Symmetric", 6, 3, 26, 3, -1, 1),
    Sketcher.Constraint("Symmetric", 5, 3, 27, 3, -1, 1),
    Sketcher.Constraint("Symmetric", 8, 3, 28, 3, -1, 1),
    Sketcher.Constraint("Symmetric", 9, 3, 29, 3, -1, 1),
    Sketcher.Constraint("Symmetric", 11, 3, 30, 3, -1, 1),
    Sketcher.Constraint("Symmetric", 10, 3, 31, 3, -1, 1),
    Sketcher.Constraint("Symmetric", 12, 3, 32, 3, -1, 1),
    Sketcher.Constraint("Symmetric", 14, 3, 33, 3, -1, 1),
    Sketcher.Constraint("Symmetric", 15, 3, 34, 3, -1, 1),
    Sketcher.Constraint("Symmetric", 13, 3, 35, 3, -1, 1),
    Sketcher.Constraint("Symmetric", 19, 3, 36, 3, -1, 1),
    Sketcher.Constraint("Symmetric", 18, 3, 37, 3, -1, 1),
    Sketcher.Constraint("Symmetric", 17, 3, 38, 3, -1, 1),
    Sketcher.Constraint("Symmetric", 16, 3, 39, 3, -1, 1),
    Sketcher.Constraint("Symmetric", 17, 3, 18, 3, -2),
    Sketcher.Constraint("Symmetric", 16, 3, 19, 3, -2),
    Sketcher.Constraint("Symmetric", 14, 3, 20, 3, -2),
    Sketcher.Constraint("Symmetric", 15, 3, 21, 3, -2),
    Sketcher.Constraint("Symmetric", 12, 3, 22, 3, -2),
    Sketcher.Constraint("Symmetric", 13, 3, 23, 3, -2),
    Sketcher.Constraint("Symmetric", 11, 3, 24, 3, -2),
    Sketcher.Constraint("Symmetric", 8, 3, 25, 3, -2),
    Sketcher.Constraint("Symmetric", 9, 3, 26, 3, -2),
    Sketcher.Constraint("Symmetric", 10, 3, 27, 3, -2),
    Sketcher.Constraint("Horizontal", 0, 3, 2, 3),
    Sketcher.Constraint("Horizontal", 1, 3, 3, 3),
    Sketcher.Constraint("Horizontal", 4, 3, 5, 3),
    Sketcher.Constraint("Horizontal", 6, 3, 7, 3),
    Sketcher.Constraint("Horizontal", 14, 3, 16, 3),
    Sketcher.Constraint("Horizontal", 15, 3, 17, 3),
    Sketcher.Constraint("Vertical", 0, 3, 1, 3),
    Sketcher.Constraint("Vertical", 2, 3, 3, 3),
    Sketcher.Constraint("Vertical", 5, 3, 6, 3),
    Sketcher.Constraint("Vertical", 4, 3, 7, 3),
    Sketcher.Constraint("Vertical", 16, 3, 17, 3),
    Sketcher.Constraint("Diameter", 0, Q("1 mm")),
    Sketcher.Constraint("DistanceX", 0, 3, -1, 1, Q("81 mm")),
    Sketcher.Constraint("DistanceX", 2, 3, -1, 1, Q("66 mm")),
    Sketcher.Constraint("DistanceX", 5, 3, 4, 3, Q("3 mm")),
    Sketcher.Constraint("DistanceY", 6, 3, 5, 3, Q("15 mm")),
    Sketcher.Constraint("DistanceX", 11, 3, 16, 3, Q("79 mm")),
    Sketcher.Constraint("DistanceX", 17, 3, 18, 3, Q("15 mm")),
    Sketcher.Constraint("DistanceY", -1, 1, 0, 3, Q("40.5 mm")),
    Sketcher.Constraint("DistanceY", -1, 1, 1, 3, Q("43.7 mm")),
    Sketcher.Constraint("DistanceY", -1, 1, 4, 3, Q("35.2 mm")),
])
doc.recompute()
hole2 = doc.addObject("PartDesign::Hole", "Hole001")
body.addObject(hole2)
hole2.Profile = sketch5
hole2.ThreadType = "None"
hole2.Diameter = 1
hole2.DepthType = "ThroughAll"

# Sketch on XY plane
sketch6 = doc.addObject("Sketcher::SketchObject", "Sketch005")
body.addObject(sketch6)
sketch6.AttachmentSupport = (doc.XY_Plane, [""])
sketch6.MapMode = "FlatFace"
sketch6.AttachmentOffset = App.Placement(V(0, 0, 3), App.Rotation())
sketch6.addGeometry([
    Part.Circle(V(35, -18.95, 0), V(0, 0, 1), 1.0065),  # 0
    Part.Circle(V(35, -27.95, 0), V(0, 0, 1), 1.0065),  # 1
    Part.Circle(V(-35, -18.95, 0), V(0, 0, 1), 1.0065),  # 2
    Part.Circle(V(-35, -27.95, 0), V(0, 0, 1), 1.0065),  # 3
    Part.Circle(V(35, 18.95, 0), V(0, 0, 1), 1.0065),  # 4
    Part.Circle(V(35, 27.95, 0), V(0, 0, 1), 1.0065),  # 5
    Part.Circle(V(-35, 18.95, 0), V(0, 0, 1), 1.0065),  # 6
    Part.Circle(V(-35, 27.95, 0), V(0, 0, 1), 1.0065),  # 7
], False)
sketch6.addConstraint([
    Sketcher.Constraint("Equal", 0, 1),
    Sketcher.Constraint("Equal", 1, 2),
    Sketcher.Constraint("Equal", 2, 3),
    Sketcher.Constraint("Equal", 3, 4),
    Sketcher.Constraint("Equal", 4, 5),
    Sketcher.Constraint("Equal", 5, 6),
    Sketcher.Constraint("Equal", 6, 7),
    Sketcher.Constraint("Symmetric", 2, 3, 4, 3, -1, 1),
    Sketcher.Constraint("Symmetric", 3, 3, 5, 3, -1, 1),
    Sketcher.Constraint("Symmetric", 0, 3, 6, 3, -1, 1),
    Sketcher.Constraint("Symmetric", 1, 3, 7, 3, -1, 1),
    Sketcher.Constraint("Symmetric", 0, 3, 2, 3, -2),
    Sketcher.Constraint("Symmetric", 1, 3, 3, 3, -2),
    Sketcher.Constraint("Vertical", 0, 3, 1, 3),
    Sketcher.Constraint("Diameter", 0, Q("2.013 mm")),
    Sketcher.Constraint("DistanceX", -1, 1, 0, 3, Q("35 mm")),
    Sketcher.Constraint("DistanceY", 1, 3, 0, 3, Q("9 mm")),
    Sketcher.Constraint("DistanceY", 0, 3, 4, 3, Q("37.9 mm")),
])
doc.recompute()
hole3 = doc.addObject("PartDesign::Hole", "Hole002")
body.addObject(hole3)
hole3.Profile = sketch6
hole3.ThreadType = "None"
hole3.Diameter = 2.013
hole3.DepthType = "ThroughAll"

doc.recompute()
